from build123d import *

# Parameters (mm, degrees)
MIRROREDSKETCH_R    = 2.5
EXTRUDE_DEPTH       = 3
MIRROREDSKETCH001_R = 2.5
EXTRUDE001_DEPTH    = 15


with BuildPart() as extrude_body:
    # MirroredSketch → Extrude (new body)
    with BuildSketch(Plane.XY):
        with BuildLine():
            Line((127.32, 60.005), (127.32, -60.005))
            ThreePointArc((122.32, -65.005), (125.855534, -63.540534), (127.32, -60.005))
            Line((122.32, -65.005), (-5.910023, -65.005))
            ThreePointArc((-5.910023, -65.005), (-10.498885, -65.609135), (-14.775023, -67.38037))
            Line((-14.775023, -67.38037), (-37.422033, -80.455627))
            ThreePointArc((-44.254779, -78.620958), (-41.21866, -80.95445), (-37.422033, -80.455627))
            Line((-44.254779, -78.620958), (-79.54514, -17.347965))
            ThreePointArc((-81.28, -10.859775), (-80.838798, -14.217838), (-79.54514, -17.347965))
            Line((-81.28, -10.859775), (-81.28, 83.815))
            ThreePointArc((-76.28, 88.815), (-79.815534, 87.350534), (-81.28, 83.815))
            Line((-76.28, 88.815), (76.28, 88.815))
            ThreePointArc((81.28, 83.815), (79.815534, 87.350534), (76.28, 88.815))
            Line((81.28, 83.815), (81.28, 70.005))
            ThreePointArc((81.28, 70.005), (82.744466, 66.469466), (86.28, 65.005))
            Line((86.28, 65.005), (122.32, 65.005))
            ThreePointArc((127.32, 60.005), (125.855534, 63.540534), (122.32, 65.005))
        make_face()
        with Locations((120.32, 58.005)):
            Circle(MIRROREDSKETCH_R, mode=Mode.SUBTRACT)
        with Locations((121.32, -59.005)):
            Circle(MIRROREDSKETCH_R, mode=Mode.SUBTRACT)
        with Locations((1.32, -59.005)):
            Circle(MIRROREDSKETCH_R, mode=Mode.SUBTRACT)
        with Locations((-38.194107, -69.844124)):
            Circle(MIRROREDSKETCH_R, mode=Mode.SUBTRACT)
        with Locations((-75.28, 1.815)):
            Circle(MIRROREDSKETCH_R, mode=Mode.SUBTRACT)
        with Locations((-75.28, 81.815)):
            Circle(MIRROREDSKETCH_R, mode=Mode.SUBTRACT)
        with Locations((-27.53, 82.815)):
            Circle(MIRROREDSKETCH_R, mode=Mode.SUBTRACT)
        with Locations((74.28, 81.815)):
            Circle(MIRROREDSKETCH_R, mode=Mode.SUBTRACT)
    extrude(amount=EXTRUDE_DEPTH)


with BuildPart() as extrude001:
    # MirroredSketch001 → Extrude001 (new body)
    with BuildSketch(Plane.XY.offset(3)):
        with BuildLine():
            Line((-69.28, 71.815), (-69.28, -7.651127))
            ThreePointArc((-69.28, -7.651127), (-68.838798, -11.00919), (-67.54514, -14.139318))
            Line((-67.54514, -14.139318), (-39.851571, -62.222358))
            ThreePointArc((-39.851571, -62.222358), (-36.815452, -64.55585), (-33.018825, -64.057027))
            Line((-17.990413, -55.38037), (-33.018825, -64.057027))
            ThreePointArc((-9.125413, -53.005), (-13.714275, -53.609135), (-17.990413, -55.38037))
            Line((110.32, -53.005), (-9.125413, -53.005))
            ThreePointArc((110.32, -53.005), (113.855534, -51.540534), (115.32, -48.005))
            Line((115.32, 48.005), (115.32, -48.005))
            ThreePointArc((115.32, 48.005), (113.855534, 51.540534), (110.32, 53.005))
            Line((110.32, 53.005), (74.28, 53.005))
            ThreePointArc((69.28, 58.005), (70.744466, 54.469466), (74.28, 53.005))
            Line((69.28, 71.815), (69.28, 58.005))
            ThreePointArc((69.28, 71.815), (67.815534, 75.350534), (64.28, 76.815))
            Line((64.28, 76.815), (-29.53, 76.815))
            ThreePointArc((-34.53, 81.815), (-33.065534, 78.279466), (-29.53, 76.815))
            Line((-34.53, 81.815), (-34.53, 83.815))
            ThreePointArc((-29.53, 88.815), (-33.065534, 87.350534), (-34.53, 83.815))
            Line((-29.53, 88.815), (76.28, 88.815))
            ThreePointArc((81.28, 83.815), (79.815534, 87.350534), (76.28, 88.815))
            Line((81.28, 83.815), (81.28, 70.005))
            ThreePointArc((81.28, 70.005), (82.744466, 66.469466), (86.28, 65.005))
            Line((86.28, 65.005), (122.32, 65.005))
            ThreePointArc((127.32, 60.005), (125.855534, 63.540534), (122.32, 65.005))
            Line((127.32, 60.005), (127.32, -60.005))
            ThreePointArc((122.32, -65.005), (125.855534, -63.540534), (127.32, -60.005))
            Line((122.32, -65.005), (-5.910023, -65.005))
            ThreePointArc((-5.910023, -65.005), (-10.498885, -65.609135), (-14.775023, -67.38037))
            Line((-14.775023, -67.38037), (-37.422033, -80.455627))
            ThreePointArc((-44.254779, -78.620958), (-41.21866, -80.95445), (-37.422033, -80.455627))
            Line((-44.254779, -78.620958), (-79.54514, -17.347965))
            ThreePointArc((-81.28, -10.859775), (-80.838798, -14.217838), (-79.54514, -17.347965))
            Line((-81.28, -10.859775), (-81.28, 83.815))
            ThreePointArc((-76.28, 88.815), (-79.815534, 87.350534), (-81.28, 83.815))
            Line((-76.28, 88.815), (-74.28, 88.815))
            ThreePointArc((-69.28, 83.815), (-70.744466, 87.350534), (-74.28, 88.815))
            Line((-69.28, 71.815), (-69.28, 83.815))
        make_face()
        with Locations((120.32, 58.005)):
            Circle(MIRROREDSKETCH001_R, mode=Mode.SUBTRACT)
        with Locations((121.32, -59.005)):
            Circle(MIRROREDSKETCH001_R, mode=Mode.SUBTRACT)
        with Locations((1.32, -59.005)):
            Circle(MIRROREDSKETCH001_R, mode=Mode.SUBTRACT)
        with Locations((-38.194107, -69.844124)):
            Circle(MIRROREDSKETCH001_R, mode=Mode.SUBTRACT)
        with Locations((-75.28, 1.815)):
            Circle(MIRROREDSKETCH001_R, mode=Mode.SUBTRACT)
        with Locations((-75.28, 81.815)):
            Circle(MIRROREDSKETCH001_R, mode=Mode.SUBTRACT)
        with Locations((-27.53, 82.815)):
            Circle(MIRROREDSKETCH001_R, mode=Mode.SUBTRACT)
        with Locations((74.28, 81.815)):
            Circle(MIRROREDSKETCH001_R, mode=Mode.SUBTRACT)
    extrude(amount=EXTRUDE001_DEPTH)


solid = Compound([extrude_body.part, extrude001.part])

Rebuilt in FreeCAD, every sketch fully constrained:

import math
import FreeCAD as App
import Part
import Sketcher
Q = App.Units.Quantity

doc = App.newDocument("Part")
body = doc.addObject("PartDesign::Body", "Body")

# Sketch on XY plane
sketch1 = body.newObject("Sketcher::SketchObject", "Sketch")
sketch1.AttachmentSupport = (doc.getObject("XY_Plane"), [""])
sketch1.MapMode = "FlatFace"
sketch1.addGeometry([
    Part.LineSegment(App.Vector(127.3, -60, 0), App.Vector(127.3, 60, 0)),  # 0
    Part.ArcOfCircle(Part.Circle(App.Vector(122.3, 60, 0), App.Vector(0, 0, 1), 5), math.radians(0), math.radians(90)),  # 1
    Part.LineSegment(App.Vector(122.3, 65, 0), App.Vector(86.3, 65, 0)),  # 2
    Part.ArcOfCircle(Part.Circle(App.Vector(86.3, 70, 0), App.Vector(0, 0, 1), 5), math.radians(180), math.radians(270)),  # 3
    Part.LineSegment(App.Vector(81.3, 70, 0), App.Vector(81.3, 83.8, 0)),  # 4
    Part.ArcOfCircle(Part.Circle(App.Vector(76.3, 83.8, 0), App.Vector(0, 0, 1), 5), math.radians(0), math.radians(90)),  # 5
    Part.LineSegment(App.Vector(76.3, 88.8, 0), App.Vector(-76.3, 88.8, 0)),  # 6
    Part.ArcOfCircle(Part.Circle(App.Vector(-76.3, 83.8, 0), App.Vector(0, 0, 1), 5), math.radians(90), math.radians(180)),  # 7
    Part.LineSegment(App.Vector(-81.3, 83.8, 0), App.Vector(-81.3, -10.9, 0)),  # 8
    Part.ArcOfCircle(Part.Circle(App.Vector(-68.3, -10.9, 0), App.Vector(0, 0, 1), 13), math.radians(-180), math.radians(-150)),  # 9
    Part.LineSegment(App.Vector(-79.5, -17.3, 0), App.Vector(-44.3, -78.6, 0)),  # 10
    Part.ArcOfCircle(Part.Circle(App.Vector(-39.9, -76.1, 0), App.Vector(0, 0, 1), 5), math.radians(-150), math.radians(-60)),  # 11
    Part.LineSegment(App.Vector(-37.4, -80.5, 0), App.Vector(-14.8, -67.4, 0)),  # 12
    Part.ArcOfCircle(Part.Circle(App.Vector(-5.9, -82.7, 0), App.Vector(0, 0, 1), 17.7), math.radians(90), math.radians(120)),  # 13
    Part.LineSegment(App.Vector(-5.9, -65, 0), App.Vector(122.3, -65, 0)),  # 14
    Part.ArcOfCircle(Part.Circle(App.Vector(122.3, -60, 0), App.Vector(0, 0, 1), 5), math.radians(-90), math.radians(0)),  # 15
    Part.Circle(App.Vector(121.3, -59, 0), App.Vector(0, 0, 1), 2.5),  # 16
    Part.Circle(App.Vector(1.3, -59, 0), App.Vector(0, 0, 1), 2.5),  # 17
    Part.Circle(App.Vector(-38.2, -69.8, 0), App.Vector(0, 0, 1), 2.5),  # 18
    Part.Circle(App.Vector(-75.3, 1.8, 0), App.Vector(0, 0, 1), 2.5),  # 19
    Part.Circle(App.Vector(120.3, 58, 0), App.Vector(0, 0, 1), 2.5),  # 20
    Part.Circle(App.Vector(74.3, 81.8, 0), App.Vector(0, 0, 1), 2.5),  # 21
    Part.Circle(App.Vector(-27.5, 82.8, 0), App.Vector(0, 0, 1), 2.5),  # 22
    Part.Circle(App.Vector(-75.3, 81.8, 0), App.Vector(0, 0, 1), 2.5),  # 23
], False)
sketch1.addConstraint([
    Sketcher.Constraint("Tangent", 0, 2, 1, 1),
    Sketcher.Constraint("Tangent", 1, 2, 2, 1),
    Sketcher.Constraint("Tangent", 2, 2, 3, 2),
    Sketcher.Constraint("Tangent", 3, 1, 4, 1),
    Sketcher.Constraint("Tangent", 4, 2, 5, 1),
    Sketcher.Constraint("Tangent", 5, 2, 6, 1),
    Sketcher.Constraint("Tangent", 6, 2, 7, 1),
    Sketcher.Constraint("Tangent", 7, 2, 8, 1),
    Sketcher.Constraint("Tangent", 8, 2, 9, 1),
    Sketcher.Constraint("Tangent", 9, 2, 10, 1),
    Sketcher.Constraint("Tangent", 10, 2, 11, 1),
    Sketcher.Constraint("Tangent", 11, 2, 12, 1),
    Sketcher.Constraint("Tangent", 12, 2, 13, 2),
    Sketcher.Constraint("Tangent", 13, 1, 14, 1),
    Sketcher.Constraint("Tangent", 14, 2, 15, 1),
    Sketcher.Constraint("Tangent", 15, 2, 0, 1),
    Sketcher.Constraint("Vertical", 0),
    Sketcher.Constraint("Horizontal", 2),
    Sketcher.Constraint("Vertical", 4),
    Sketcher.Constraint("Horizontal", 6),
    Sketcher.Constraint("Vertical", 8),
    Sketcher.Constraint("Horizontal", 14),
    Sketcher.Constraint("Equal", 1, 3),
    Sketcher.Constraint("Equal", 3, 5),
    Sketcher.Constraint("Equal", 5, 7),
    Sketcher.Constraint("Equal", 7, 11),
    Sketcher.Constraint("Equal", 11, 15),
    Sketcher.Constraint("Equal", 16, 17),
    Sketcher.Constraint("Equal", 17, 18),
    Sketcher.Constraint("Equal", 18, 19),
    Sketcher.Constraint("Equal", 19, 20),
    Sketcher.Constraint("Equal", 20, 21),
    Sketcher.Constraint("Equal", 21, 22),
    Sketcher.Constraint("Equal", 22, 23),
    Sketcher.Constraint("Horizontal", 16, 3, 17, 3),
    Sketcher.Constraint("Horizontal", 21, 3, 23, 3),
    Sketcher.Constraint("Vertical", 19, 3, 23, 3),
    Sketcher.Constraint("Diameter", 16, Q("5 mm")),
    Sketcher.Constraint("Radius", 1, Q("5 mm")),
    Sketcher.Constraint("Radius", 9, Q("13 mm")),
    Sketcher.Constraint("Angle", 12, Q("29.999999 deg")),
    Sketcher.Constraint("DistanceX", 16, 3, 15, 3, Q("1 mm")),
    Sketcher.Constraint("DistanceY", 15, 3, 16, 3, Q("1 mm")),
    Sketcher.Constraint("DistanceX", 17, 3, 16, 3, Q("120 mm")),
    Sketcher.Constraint("DistanceX", 19, 3, 9, 3, Q("7 mm")),
    Sketcher.Constraint("DistanceY", 19, 3, 7, 3, Q("82 mm")),
    Sketcher.Constraint("DistanceX", 20, 3, 1, 3, Q("2 mm")),
    Sketcher.Constraint("DistanceY", 20, 3, 1, 3, Q("2 mm")),
    Sketcher.Constraint("DistanceX", 21, 3, 5, 3, Q("2 mm")),
    Sketcher.Constraint("DistanceY", 21, 3, 5, 3, Q("2 mm")),
    Sketcher.Constraint("DistanceY", 22, 3, 7, 3, Q("1 mm")),
    Sketcher.Constraint("DistanceX", 2, 2, 2, 1, Q("36.04 mm")),
    Sketcher.Constraint("DistanceX", 6, 2, 6, 1, Q("152.56 mm")),
    Sketcher.Constraint("DistanceY", 0, 1, 0, 2, Q("120.01 mm")),
    Sketcher.Constraint("DistanceY", 4, 1, 4, 2, Q("13.81 mm")),
    Sketcher.Constraint("DistanceX", -1, 1, 1, 3, Q("122.32 mm")),
    Sketcher.Constraint("DistanceX", 22, 3, -1, 1, Q("27.53 mm")),
    Sketcher.Constraint("Radius", 13, Q("17.72999 mm")),
    Sketcher.Constraint("DistanceY", -1, 1, 1, 3, Q("60.005 mm")),
    Sketcher.Constraint("DistanceY", 11, 3, -1, 1, Q("76.1255 mm")),
    Sketcher.Constraint("DistanceX", 14, 1, 14, 2, Q("128.230023 mm")),
    Sketcher.Constraint("DistanceY", 8, 2, 8, 1, Q("94.674775 mm")),
    Sketcher.Constraint("DistanceX", 18, 3, 13, 3, Q("32.284082 mm")),
    Sketcher.Constraint("DistanceY", 18, 3, 9, 3, Q("58.98435 mm")),
])
pad1 = body.newObject("PartDesign::Pad", "Pad")
pad1.Profile = sketch1
pad1.Length = 3
body2 = doc.addObject("PartDesign::Body", "Body001")

# Sketch on XY plane
sketch2 = body2.newObject("Sketcher::SketchObject", "Sketch001")
sketch2.AttachmentSupport = (doc.getObject("XY_Plane001"), [""])
sketch2.MapMode = "FlatFace"
sketch2.AttachmentOffset = App.Placement(App.Vector(0, 0, 3), App.Rotation())
sketch2.addGeometry([
    Part.LineSegment(App.Vector(-69.3, -7.7, 0), App.Vector(-69.3, 83.8, 0)),  # 0
    Part.ArcOfCircle(Part.Circle(App.Vector(-74.3, 83.8, 0), App.Vector(0, 0, 1), 5), math.radians(0), math.radians(90)),  # 1
    Part.LineSegment(App.Vector(-74.3, 88.8, 0), App.Vector(-76.3, 88.8, 0)),  # 2
    Part.ArcOfCircle(Part.Circle(App.Vector(-76.3, 83.8, 0), App.Vector(0, 0, 1), 5), math.radians(90), math.radians(180)),  # 3
    Part.LineSegment(App.Vector(-81.3, 83.8, 0), App.Vector(-81.3, -10.9, 0)),  # 4
    Part.ArcOfCircle(Part.Circle(App.Vector(-68.3, -10.9, 0), App.Vector(0, 0, 1), 13), math.radians(-180), math.radians(-150)),  # 5
    Part.LineSegment(App.Vector(-79.5, -17.3, 0), App.Vector(-44.3, -78.6, 0)),  # 6
    Part.ArcOfCircle(Part.Circle(App.Vector(-39.9, -76.1, 0), App.Vector(0, 0, 1), 5), math.radians(-150), math.radians(-60)),  # 7
    Part.LineSegment(App.Vector(-37.4, -80.5, 0), App.Vector(-14.8, -67.4, 0)),  # 8
    Part.ArcOfCircle(Part.Circle(App.Vector(-5.9, -82.7, 0), App.Vector(0, 0, 1), 17.7), math.radians(90), math.radians(120)),  # 9
    Part.LineSegment(App.Vector(-5.9, -65, 0), App.Vector(122.3, -65, 0)),  # 10
    Part.ArcOfCircle(Part.Circle(App.Vector(122.3, -60, 0), App.Vector(0, 0, 1), 5), math.radians(-90), math.radians(0)),  # 11
    Part.LineSegment(App.Vector(127.3, -60, 0), App.Vector(127.3, 60, 0)),  # 12
    Part.ArcOfCircle(Part.Circle(App.Vector(122.3, 60, 0), App.Vector(0, 0, 1), 5), math.radians(0), math.radians(90)),  # 13
    Part.LineSegment(App.Vector(122.3, 65, 0), App.Vector(86.3, 65, 0)),  # 14
    Part.ArcOfCircle(Part.Circle(App.Vector(86.3, 70, 0), App.Vector(0, 0, 1), 5), math.radians(180), math.radians(270)),  # 15
    Part.LineSegment(App.Vector(81.3, 70, 0), App.Vector(81.3, 83.8, 0)),  # 16
    Part.ArcOfCircle(Part.Circle(App.Vector(76.3, 83.8, 0), App.Vector(0, 0, 1), 5), math.radians(0), math.radians(90)),  # 17
    Part.LineSegment(App.Vector(76.3, 88.8, 0), App.Vector(-29.5, 88.8, 0)),  # 18
    Part.ArcOfCircle(Part.Circle(App.Vector(-29.5, 83.8, 0), App.Vector(0, 0, 1), 5), math.radians(90), math.radians(180)),  # 19
    Part.LineSegment(App.Vector(-34.5, 83.8, 0), App.Vector(-34.5, 81.8, 0)),  # 20
    Part.ArcOfCircle(Part.Circle(App.Vector(-29.5, 81.8, 0), App.Vector(0, 0, 1), 5), math.radians(180), math.radians(270)),  # 21
    Part.LineSegment(App.Vector(-29.5, 76.8, 0), App.Vector(64.3, 76.8, 0)),  # 22
    Part.ArcOfCircle(Part.Circle(App.Vector(64.3, 71.8, 0), App.Vector(0, 0, 1), 5), math.radians(0), math.radians(90)),  # 23
    Part.LineSegment(App.Vector(69.3, 71.8, 0), App.Vector(69.3, 58, 0)),  # 24
    Part.ArcOfCircle(Part.Circle(App.Vector(74.3, 58, 0), App.Vector(0, 0, 1), 5), math.radians(180), math.radians(270)),  # 25
    Part.LineSegment(App.Vector(74.3, 53, 0), App.Vector(110.3, 53, 0)),  # 26
    Part.ArcOfCircle(Part.Circle(App.Vector(110.3, 48, 0), App.Vector(0, 0, 1), 5), math.radians(0), math.radians(90)),  # 27
    Part.LineSegment(App.Vector(115.3, 48, 0), App.Vector(115.3, -48, 0)),  # 28
    Part.ArcOfCircle(Part.Circle(App.Vector(110.3, -48, 0), App.Vector(0, 0, 1), 5), math.radians(-90), math.radians(0)),  # 29
    Part.LineSegment(App.Vector(110.3, -53, 0), App.Vector(-9.1, -53, 0)),  # 30
    Part.ArcOfCircle(Part.Circle(App.Vector(-9.1, -70.7, 0), App.Vector(0, 0, 1), 17.7), math.radians(90), math.radians(120)),  # 31
    Part.LineSegment(App.Vector(-18, -55.4, 0), App.Vector(-33, -64.1, 0)),  # 32
    Part.ArcOfCircle(Part.Circle(App.Vector(-35.5, -59.7, 0), App.Vector(0, 0, 1), 5), math.radians(-150), math.radians(-60)),  # 33
    Part.LineSegment(App.Vector(-39.9, -62.2, 0), App.Vector(-67.5, -14.1, 0)),  # 34
    Part.ArcOfCircle(Part.Circle(App.Vector(-56.3, -7.7, 0), App.Vector(0, 0, 1), 13), math.radians(-180), math.radians(-150)),  # 35
    Part.Circle(App.Vector(121.3, -59, 0), App.Vector(0, 0, 1), 2.5),  # 36
    Part.Circle(App.Vector(1.3, -59, 0), App.Vector(0, 0, 1), 2.5),  # 37
    Part.Circle(App.Vector(-38.2, -69.8, 0), App.Vector(0, 0, 1), 2.5),  # 38
    Part.Circle(App.Vector(-75.3, 1.8, 0), App.Vector(0, 0, 1), 2.5),  # 39
    Part.Circle(App.Vector(120.3, 58, 0), App.Vector(0, 0, 1), 2.5),  # 40
    Part.Circle(App.Vector(74.3, 81.8, 0), App.Vector(0, 0, 1), 2.5),  # 41
    Part.Circle(App.Vector(-27.5, 82.8, 0), App.Vector(0, 0, 1), 2.5),  # 42
    Part.Circle(App.Vector(-75.3, 81.8, 0), App.Vector(0, 0, 1), 2.5),  # 43
], False)
sketch2.addConstraint([
    Sketcher.Constraint("Tangent", 0, 2, 1, 1),
    Sketcher.Constraint("Tangent", 1, 2, 2, 1),
    Sketcher.Constraint("Tangent", 2, 2, 3, 1),
    Sketcher.Constraint("Tangent", 3, 2, 4, 1),
    Sketcher.Constraint("Tangent", 4, 2, 5, 1),
    Sketcher.Constraint("Tangent", 5, 2, 6, 1),
    Sketcher.Constraint("Tangent", 6, 2, 7, 1),
    Sketcher.Constraint("Tangent", 7, 2, 8, 1),
    Sketcher.Constraint("Tangent", 8, 2, 9, 2),
    Sketcher.Constraint("Tangent", 9, 1, 10, 1),
    Sketcher.Constraint("Tangent", 10, 2, 11, 1),
    Sketcher.Constraint("Tangent", 11, 2, 12, 1),
    Sketcher.Constraint("Tangent", 12, 2, 13, 1),
    Sketcher.Constraint("Tangent", 13, 2, 14, 1),
    Sketcher.Constraint("Tangent", 14, 2, 15, 2),
    Sketcher.Constraint("Tangent", 15, 1, 16, 1),
    Sketcher.Constraint("Tangent", 16, 2, 17, 1),
    Sketcher.Constraint("Tangent", 17, 2, 18, 1),
    Sketcher.Constraint("Tangent", 18, 2, 19, 1),
    Sketcher.Constraint("Tangent", 19, 2, 20, 1),
    Sketcher.Constraint("Tangent", 20, 2, 21, 1),
    Sketcher.Constraint("Tangent", 21, 2, 22, 1),
    Sketcher.Constraint("Tangent", 22, 2, 23, 2),
    Sketcher.Constraint("Tangent", 23, 1, 24, 1),
    Sketcher.Constraint("Tangent", 24, 2, 25, 1),
    Sketcher.Constraint("Tangent", 25, 2, 26, 1),
    Sketcher.Constraint("Tangent", 26, 2, 27, 2),
    Sketcher.Constraint("Tangent", 27, 1, 28, 1),
    Sketcher.Constraint("Tangent", 28, 2, 29, 2),
    Sketcher.Constraint("Tangent", 29, 1, 30, 1),
    Sketcher.Constraint("Tangent", 30, 2, 31, 1),
    Sketcher.Constraint("Tangent", 31, 2, 32, 1),
    Sketcher.Constraint("Tangent", 32, 2, 33, 2),
    Sketcher.Constraint("Tangent", 33, 1, 34, 1),
    Sketcher.Constraint("Tangent", 34, 2, 35, 2),
    Sketcher.Constraint("Tangent", 35, 1, 0, 1),
    Sketcher.Constraint("Vertical", 0),
    Sketcher.Constraint("Horizontal", 2),
    Sketcher.Constraint("Vertical", 4),
    Sketcher.Constraint("Horizontal", 10),
    Sketcher.Constraint("Vertical", 12),
    Sketcher.Constraint("Horizontal", 14),
    Sketcher.Constraint("Vertical", 16),
    Sketcher.Constraint("Horizontal", 18),
    Sketcher.Constraint("Vertical", 20),
    Sketcher.Constraint("Horizontal", 22),
    Sketcher.Constraint("Vertical", 24),
    Sketcher.Constraint("Horizontal", 26),
    Sketcher.Constraint("Vertical", 28),
    Sketcher.Constraint("Horizontal", 30),
    Sketcher.Constraint("Equal", 1, 3),
    Sketcher.Constraint("Equal", 3, 7),
    Sketcher.Constraint("Equal", 7, 11),
    Sketcher.Constraint("Equal", 11, 13),
    Sketcher.Constraint("Equal", 13, 15),
    Sketcher.Constraint("Equal", 15, 17),
    Sketcher.Constraint("Equal", 17, 19),
    Sketcher.Constraint("Equal", 19, 21),
    Sketcher.Constraint("Equal", 21, 23),
    Sketcher.Constraint("Equal", 23, 25),
    Sketcher.Constraint("Equal", 25, 27),
    Sketcher.Constraint("Equal", 27, 29),
    Sketcher.Constraint("Equal", 9, 31),
    Sketcher.Constraint("Equal", 29, 33),
    Sketcher.Constraint("Equal", 36, 37),
    Sketcher.Constraint("Equal", 37, 38),
    Sketcher.Constraint("Equal", 38, 39),
    Sketcher.Constraint("Equal", 39, 40),
    Sketcher.Constraint("Equal", 40, 41),
    Sketcher.Constraint("Equal", 41, 42),
    Sketcher.Constraint("Equal", 42, 43),
    Sketcher.Constraint("Symmetric", 3, 3, 17, 3, -2),
    Sketcher.Constraint("Parallel", 8, 32),
    Sketcher.Constraint("Parallel", 6, 34),
    Sketcher.Constraint("Horizontal", 36, 3, 37, 3),
    Sketcher.Constraint("Horizontal", 25, 3, 40, 3),
    Sketcher.Constraint("Horizontal", 21, 3, 41, 3),
    Sketcher.Constraint("Horizontal", 41, 3, 43, 3),
    Sketcher.Constraint("Vertical", 25, 3, 41, 3),
    Sketcher.Constraint("Vertical", 39, 3, 43, 3),
    Sketcher.Constraint("Equal", 14, 26),
    Sketcher.Constraint("Equal", 2, 20),
    Sketcher.Constraint("Equal", 16, 24),
    Sketcher.Constraint("Diameter", 36, Q("5 mm")),
    Sketcher.Constraint("Radius", 1, Q("5 mm")),
    Sketcher.Constraint("Radius", 5, Q("13 mm")),
    Sketcher.Constraint("DistanceX", 2, 2, 2, 1, Q("2 mm")),
    Sketcher.Constraint("Angle", 8, Q("29.999999 deg")),
    Sketcher.Constraint("DistanceX", 14, 2, 14, 1, Q("36.04 mm")),
    Sketcher.Constraint("DistanceX", 18, 2, 18, 1, Q("105.81 mm")),
    Sketcher.Constraint("DistanceX", 22, 1, 22, 2, Q("93.81 mm")),
    Sketcher.Constraint("DistanceY", 12, 1, 12, 2, Q("120.01 mm")),
    Sketcher.Constraint("DistanceY", 16, 1, 16, 2, Q("13.81 mm")),
    Sketcher.Constraint("DistanceY", 28, 2, 28, 1, Q("96.01 mm")),
    Sketcher.Constraint("DistanceX", 1, 3, -1, 1, Q("74.28 mm")),
    Sketcher.Constraint("DistanceX", -1, 1, 36, 3, Q("121.32 mm")),
    Sketcher.Constraint("DistanceX", -1, 1, 37, 3, Q("1.32 mm")),
    Sketcher.Constraint("DistanceX", 39, 3, -1, 1, Q("75.28 mm")),
    Sketcher.Constraint("DistanceX", -1, 1, 40, 3, Q("120.32 mm")),
    Sketcher.Constraint("DistanceX", 42, 3, -1, 1, Q("27.53 mm")),
    Sketcher.Constraint("Radius", 9, Q("17.72999 mm")),
    Sketcher.Constraint("DistanceY", -1, 1, 1, 3, Q("83.815 mm")),
    Sketcher.Constraint("DistanceY", 36, 3, -1, 1, Q("59.005 mm")),
    Sketcher.Constraint("DistanceY", -1, 1, 39, 3, Q("1.815 mm")),
    Sketcher.Constraint("DistanceY", -1, 1, 42, 3, Q("82.815 mm")),
    Sketcher.Constraint("Radius", 35, Q("13.000007 mm")),
    Sketcher.Constraint("DistanceY", 7, 3, -1, 1, Q("76.1255 mm")),
    Sketcher.Constraint("DistanceY", 33, 3, -1, 1, Q("59.7269 mm")),
    Sketcher.Constraint("Distance", 34, Q("55.487949 mm")),
    Sketcher.Constraint("DistanceX", 10, 1, 10, 2, Q("128.230023 mm")),
    Sketcher.Constraint("DistanceX", 30, 2, 30, 1, Q("119.445413 mm")),
    Sketcher.Constraint("DistanceX", 38, 3, -1, 1, Q("38.194107 mm")),
    Sketcher.Constraint("DistanceY", 38, 3, -1, 1, Q("69.844124 mm")),
])
pad2 = body2.newObject("PartDesign::Pad", "Pad001")
pad2.Profile = sketch2
pad2.Length = 15

doc.recompute()
